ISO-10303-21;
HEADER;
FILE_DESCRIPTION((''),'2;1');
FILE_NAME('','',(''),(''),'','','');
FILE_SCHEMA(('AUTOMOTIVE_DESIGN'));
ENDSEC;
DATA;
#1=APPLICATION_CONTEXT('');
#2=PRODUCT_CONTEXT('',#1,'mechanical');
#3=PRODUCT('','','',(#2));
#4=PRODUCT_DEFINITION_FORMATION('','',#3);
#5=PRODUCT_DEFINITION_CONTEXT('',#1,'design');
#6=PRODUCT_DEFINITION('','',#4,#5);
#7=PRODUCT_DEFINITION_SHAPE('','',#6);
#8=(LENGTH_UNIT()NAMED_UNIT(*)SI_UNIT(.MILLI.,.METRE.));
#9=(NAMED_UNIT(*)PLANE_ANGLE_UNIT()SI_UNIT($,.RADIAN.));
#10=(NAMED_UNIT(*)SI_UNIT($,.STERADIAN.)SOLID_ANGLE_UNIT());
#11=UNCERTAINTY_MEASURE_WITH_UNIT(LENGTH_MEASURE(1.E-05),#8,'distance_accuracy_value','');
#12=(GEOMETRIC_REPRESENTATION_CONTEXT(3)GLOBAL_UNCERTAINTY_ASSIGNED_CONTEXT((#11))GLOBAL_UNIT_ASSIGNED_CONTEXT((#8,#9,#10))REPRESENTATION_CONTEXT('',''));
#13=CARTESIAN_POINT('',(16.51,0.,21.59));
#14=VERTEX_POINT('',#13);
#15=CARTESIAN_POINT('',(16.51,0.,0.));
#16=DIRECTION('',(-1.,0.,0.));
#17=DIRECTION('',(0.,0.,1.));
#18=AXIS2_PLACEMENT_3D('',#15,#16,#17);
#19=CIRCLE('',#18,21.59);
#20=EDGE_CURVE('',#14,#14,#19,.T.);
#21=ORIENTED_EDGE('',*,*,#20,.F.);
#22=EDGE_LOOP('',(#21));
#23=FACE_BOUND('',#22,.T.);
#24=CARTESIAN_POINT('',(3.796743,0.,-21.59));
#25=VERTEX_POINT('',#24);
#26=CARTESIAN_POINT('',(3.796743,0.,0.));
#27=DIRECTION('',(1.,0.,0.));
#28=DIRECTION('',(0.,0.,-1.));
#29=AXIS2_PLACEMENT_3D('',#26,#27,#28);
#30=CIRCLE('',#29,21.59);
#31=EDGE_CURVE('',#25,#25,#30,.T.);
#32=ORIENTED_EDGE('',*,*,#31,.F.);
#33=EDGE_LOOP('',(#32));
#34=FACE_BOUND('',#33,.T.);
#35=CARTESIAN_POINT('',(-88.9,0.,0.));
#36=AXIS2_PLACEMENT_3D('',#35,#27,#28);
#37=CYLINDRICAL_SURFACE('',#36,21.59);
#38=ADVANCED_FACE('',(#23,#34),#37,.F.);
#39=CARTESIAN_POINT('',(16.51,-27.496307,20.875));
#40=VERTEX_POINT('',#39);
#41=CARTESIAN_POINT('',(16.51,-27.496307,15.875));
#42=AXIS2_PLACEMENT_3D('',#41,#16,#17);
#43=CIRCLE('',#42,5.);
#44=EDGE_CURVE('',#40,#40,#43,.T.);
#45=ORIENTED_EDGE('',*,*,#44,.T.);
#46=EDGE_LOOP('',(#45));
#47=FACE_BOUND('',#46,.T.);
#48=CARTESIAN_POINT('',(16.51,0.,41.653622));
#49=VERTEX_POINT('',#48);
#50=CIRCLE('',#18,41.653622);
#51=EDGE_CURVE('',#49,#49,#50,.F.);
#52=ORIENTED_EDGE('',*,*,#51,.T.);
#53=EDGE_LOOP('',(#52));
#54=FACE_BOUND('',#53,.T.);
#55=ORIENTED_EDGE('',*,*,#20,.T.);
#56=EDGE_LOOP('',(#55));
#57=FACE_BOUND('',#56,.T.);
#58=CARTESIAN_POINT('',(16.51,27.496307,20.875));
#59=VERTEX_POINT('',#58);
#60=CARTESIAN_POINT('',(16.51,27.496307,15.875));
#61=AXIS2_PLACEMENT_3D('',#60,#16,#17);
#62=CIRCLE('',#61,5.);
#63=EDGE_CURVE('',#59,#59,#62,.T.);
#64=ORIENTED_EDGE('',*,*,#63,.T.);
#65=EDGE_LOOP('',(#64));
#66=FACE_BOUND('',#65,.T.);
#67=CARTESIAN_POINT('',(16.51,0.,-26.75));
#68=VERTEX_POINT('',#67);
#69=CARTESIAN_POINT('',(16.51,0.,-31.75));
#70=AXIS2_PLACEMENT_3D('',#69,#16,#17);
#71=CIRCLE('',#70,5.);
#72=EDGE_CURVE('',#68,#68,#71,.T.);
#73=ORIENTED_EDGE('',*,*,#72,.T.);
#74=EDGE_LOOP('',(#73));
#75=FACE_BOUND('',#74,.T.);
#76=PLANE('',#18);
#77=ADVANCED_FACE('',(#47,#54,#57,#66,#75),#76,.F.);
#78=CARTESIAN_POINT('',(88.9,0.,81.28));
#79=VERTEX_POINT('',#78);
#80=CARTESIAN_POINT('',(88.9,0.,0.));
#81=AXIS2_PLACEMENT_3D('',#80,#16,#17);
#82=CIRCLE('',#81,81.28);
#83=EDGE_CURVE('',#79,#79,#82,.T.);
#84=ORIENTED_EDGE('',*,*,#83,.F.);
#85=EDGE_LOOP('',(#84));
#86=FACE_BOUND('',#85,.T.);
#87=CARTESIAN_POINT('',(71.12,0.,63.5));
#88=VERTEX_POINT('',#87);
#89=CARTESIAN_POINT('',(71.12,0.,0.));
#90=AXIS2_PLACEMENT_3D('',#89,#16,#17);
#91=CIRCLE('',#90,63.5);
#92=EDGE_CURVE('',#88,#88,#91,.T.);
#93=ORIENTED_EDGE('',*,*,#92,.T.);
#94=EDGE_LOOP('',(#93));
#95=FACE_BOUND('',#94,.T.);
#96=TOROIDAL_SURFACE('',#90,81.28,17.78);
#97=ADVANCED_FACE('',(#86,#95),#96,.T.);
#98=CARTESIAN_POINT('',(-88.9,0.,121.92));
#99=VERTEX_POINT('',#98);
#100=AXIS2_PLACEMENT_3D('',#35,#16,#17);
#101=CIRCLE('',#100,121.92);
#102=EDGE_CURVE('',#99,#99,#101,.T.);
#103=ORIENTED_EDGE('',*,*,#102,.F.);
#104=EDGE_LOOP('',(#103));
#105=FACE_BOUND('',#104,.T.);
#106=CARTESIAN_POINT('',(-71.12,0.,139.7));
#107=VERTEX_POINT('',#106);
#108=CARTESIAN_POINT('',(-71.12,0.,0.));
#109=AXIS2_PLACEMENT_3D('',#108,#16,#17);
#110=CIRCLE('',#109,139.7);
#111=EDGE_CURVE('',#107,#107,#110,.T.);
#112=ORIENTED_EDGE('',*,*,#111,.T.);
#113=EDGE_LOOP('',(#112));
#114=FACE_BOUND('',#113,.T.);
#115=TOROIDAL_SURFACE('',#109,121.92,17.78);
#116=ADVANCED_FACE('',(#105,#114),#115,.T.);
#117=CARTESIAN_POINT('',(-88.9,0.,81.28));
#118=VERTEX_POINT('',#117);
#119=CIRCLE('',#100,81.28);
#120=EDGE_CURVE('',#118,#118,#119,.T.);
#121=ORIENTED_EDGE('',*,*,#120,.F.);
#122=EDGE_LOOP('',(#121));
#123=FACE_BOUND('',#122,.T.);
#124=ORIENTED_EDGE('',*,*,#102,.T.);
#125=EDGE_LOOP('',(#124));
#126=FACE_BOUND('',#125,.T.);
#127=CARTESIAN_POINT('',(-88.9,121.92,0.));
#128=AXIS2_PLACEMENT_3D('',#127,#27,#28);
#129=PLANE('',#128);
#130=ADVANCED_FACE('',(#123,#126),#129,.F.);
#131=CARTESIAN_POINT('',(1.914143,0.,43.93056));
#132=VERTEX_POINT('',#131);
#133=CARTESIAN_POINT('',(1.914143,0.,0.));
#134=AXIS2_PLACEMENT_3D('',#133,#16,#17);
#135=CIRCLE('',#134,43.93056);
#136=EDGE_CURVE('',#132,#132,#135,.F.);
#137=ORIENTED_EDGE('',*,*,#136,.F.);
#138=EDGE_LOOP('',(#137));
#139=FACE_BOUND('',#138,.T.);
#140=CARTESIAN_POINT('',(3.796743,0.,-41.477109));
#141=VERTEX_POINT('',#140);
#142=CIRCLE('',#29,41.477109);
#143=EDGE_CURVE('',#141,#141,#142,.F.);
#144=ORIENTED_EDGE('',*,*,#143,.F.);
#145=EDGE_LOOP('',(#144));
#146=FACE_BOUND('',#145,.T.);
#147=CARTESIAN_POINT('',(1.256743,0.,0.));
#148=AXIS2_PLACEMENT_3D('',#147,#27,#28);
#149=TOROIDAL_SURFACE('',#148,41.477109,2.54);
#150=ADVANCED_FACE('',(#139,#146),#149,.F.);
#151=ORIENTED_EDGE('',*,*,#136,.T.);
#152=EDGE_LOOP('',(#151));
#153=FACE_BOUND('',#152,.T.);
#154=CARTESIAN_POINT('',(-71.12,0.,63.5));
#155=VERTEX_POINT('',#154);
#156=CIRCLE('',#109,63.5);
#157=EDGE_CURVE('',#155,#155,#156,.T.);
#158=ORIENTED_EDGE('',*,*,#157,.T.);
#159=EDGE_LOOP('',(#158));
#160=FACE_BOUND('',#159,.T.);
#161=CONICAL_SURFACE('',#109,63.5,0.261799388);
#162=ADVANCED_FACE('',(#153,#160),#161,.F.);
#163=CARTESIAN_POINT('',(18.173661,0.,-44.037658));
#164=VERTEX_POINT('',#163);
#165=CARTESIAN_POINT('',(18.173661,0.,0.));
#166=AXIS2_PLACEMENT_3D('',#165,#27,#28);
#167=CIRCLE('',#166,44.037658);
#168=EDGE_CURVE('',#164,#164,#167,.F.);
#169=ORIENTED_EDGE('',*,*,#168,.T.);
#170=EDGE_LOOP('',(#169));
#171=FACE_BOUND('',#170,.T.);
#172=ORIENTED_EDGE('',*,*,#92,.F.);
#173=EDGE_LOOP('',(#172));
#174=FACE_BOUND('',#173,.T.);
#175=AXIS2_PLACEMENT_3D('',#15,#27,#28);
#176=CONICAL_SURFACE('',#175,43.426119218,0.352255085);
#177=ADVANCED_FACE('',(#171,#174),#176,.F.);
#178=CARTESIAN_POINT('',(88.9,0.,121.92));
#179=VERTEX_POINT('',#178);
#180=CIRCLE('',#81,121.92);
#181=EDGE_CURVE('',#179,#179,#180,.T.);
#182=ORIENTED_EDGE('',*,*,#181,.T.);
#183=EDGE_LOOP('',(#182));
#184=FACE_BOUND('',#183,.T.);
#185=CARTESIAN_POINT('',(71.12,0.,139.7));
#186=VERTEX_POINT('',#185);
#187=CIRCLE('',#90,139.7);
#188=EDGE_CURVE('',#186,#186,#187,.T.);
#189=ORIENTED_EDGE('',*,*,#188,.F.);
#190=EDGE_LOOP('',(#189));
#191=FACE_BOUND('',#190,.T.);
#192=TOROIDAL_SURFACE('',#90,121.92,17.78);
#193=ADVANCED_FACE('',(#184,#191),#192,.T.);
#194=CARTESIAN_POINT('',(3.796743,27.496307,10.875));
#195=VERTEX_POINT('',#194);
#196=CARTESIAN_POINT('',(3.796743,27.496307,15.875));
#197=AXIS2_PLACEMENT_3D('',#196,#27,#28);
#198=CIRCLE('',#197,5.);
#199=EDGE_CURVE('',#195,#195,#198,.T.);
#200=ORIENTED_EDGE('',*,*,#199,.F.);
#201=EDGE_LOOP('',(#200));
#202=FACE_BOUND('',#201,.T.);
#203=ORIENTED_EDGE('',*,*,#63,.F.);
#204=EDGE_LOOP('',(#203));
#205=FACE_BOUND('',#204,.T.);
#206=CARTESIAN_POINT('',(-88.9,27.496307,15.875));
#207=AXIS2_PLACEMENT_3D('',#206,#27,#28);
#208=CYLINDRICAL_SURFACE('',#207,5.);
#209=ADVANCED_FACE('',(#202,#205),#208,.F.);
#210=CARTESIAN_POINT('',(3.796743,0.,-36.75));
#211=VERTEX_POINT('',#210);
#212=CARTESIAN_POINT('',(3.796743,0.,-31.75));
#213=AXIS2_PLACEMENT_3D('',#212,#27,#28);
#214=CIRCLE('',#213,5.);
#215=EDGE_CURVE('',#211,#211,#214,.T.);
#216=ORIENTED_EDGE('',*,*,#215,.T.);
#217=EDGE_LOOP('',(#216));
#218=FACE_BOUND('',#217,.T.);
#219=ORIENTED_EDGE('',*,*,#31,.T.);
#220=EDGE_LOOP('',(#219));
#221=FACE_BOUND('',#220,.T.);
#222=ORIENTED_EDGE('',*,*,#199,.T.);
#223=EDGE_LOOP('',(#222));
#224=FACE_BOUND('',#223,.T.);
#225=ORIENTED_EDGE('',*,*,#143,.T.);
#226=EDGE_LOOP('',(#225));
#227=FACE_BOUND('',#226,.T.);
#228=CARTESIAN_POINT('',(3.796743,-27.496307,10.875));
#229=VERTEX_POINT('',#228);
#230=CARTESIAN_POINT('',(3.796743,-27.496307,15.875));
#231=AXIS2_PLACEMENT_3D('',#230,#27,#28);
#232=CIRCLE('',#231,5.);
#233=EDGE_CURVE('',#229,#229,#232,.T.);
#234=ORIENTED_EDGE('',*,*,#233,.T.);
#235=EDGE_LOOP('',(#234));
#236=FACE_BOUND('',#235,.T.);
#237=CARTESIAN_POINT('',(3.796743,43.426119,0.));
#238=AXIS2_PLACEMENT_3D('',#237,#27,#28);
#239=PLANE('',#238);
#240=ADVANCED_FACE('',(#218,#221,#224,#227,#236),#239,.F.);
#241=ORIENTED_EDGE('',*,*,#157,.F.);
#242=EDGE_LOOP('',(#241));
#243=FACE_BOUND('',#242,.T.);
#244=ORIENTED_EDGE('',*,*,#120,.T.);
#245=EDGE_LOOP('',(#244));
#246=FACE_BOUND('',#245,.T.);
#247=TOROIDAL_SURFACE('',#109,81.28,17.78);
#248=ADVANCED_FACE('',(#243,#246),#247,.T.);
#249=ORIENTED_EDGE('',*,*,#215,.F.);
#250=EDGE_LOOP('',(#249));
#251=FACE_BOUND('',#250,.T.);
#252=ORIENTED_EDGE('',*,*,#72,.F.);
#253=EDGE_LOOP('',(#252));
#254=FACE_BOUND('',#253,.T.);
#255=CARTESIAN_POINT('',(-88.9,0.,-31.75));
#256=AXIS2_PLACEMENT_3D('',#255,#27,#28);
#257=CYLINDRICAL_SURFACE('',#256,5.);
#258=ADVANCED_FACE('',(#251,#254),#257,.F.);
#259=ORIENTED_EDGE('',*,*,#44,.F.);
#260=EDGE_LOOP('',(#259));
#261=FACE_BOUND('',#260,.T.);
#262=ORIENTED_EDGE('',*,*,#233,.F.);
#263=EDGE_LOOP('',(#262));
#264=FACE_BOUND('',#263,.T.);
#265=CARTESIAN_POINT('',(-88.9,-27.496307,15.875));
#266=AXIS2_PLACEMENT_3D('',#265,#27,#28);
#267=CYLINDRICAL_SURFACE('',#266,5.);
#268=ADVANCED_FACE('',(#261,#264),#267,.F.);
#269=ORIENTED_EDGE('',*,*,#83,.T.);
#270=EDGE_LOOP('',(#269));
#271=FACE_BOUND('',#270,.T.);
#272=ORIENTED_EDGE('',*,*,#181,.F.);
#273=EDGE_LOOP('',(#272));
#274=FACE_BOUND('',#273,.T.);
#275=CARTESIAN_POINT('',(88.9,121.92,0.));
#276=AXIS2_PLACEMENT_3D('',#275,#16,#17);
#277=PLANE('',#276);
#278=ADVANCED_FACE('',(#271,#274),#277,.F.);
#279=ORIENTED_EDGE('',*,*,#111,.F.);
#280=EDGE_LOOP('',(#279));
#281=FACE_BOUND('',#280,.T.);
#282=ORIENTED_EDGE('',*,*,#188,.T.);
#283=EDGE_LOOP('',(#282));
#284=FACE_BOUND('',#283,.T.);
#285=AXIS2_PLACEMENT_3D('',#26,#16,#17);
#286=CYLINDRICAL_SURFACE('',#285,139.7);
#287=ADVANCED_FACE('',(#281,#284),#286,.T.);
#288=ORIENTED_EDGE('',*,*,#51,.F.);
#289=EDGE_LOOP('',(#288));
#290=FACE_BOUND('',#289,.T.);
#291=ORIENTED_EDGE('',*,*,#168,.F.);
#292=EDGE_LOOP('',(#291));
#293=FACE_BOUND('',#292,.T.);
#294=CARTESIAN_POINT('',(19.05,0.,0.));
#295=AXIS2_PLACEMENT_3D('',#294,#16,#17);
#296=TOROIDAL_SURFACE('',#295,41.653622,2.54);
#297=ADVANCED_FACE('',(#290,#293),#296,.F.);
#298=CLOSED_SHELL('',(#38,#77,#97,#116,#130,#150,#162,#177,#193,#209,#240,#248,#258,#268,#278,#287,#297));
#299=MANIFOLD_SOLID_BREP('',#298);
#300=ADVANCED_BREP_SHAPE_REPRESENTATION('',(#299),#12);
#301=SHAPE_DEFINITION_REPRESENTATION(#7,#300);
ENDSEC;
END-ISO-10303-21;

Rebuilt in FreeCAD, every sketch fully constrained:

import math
import FreeCAD as App
import Part
import Sketcher
Q = App.Units.Quantity


def edges_at(feature, points):
    """Names of the edges that pass closest to the given points."""
    edges = feature.Shape.Edges
    near = lambda p: min(range(len(edges)), key=lambda i: edges[i].distToShape(Part.Vertex(*p))[0])
    return sorted({f"Edge{near(p) + 1}" for p in points})

doc = App.newDocument("Part")
body = doc.addObject("PartDesign::Body", "Body")

# Sketch on XY plane
sketch1 = doc.addObject("Sketcher::SketchObject", "Sketch")
body.addObject(sketch1)
sketch1.AttachmentSupport = (doc.XY_Plane, [""])
sketch1.MapMode = "FlatFace"
sketch1.addGeometry([
    Part.LineSegment(App.Vector(71, 140, 0), App.Vector(-71, 140, 0)),  # 0
    Part.ArcOfCircle(Part.Circle(App.Vector(-71, 122, 0), App.Vector(0, 0, 1), 18), math.radians(90), math.radians(180)),  # 1
    Part.LineSegment(App.Vector(-89, 122, 0), App.Vector(-89, 81, 0)),  # 2
    Part.ArcOfCircle(Part.Circle(App.Vector(-71, 81, 0), App.Vector(0, 0, 1), 18), math.radians(-180), math.radians(-90)),  # 3
    Part.LineSegment(App.Vector(-71, 64, 0), App.Vector(4, 43, 0)),  # 4
    Part.LineSegment(App.Vector(4, 43, 0), App.Vector(4, 0, 0)),  # 5
    Part.LineSegment(App.Vector(4, 0, 0), App.Vector(17, 0, 0)),  # 6
    Part.LineSegment(App.Vector(17, 0, 0), App.Vector(17, 43, 0)),  # 7
    Part.LineSegment(App.Vector(17, 43, 0), App.Vector(71, 64, 0)),  # 8
    Part.ArcOfCircle(Part.Circle(App.Vector(71, 81, 0), App.Vector(0, 0, 1), 18), math.radians(-90), math.radians(0)),  # 9
    Part.LineSegment(App.Vector(89, 81, 0), App.Vector(89, 122, 0)),  # 10
    Part.ArcOfCircle(Part.Circle(App.Vector(71, 122, 0), App.Vector(0, 0, 1), 18), math.radians(0), math.radians(90)),  # 11
], False)
sketch1.addConstraint([
    Sketcher.Constraint("Tangent", 0, 2, 1, 1),
    Sketcher.Constraint("Tangent", 1, 2, 2, 1),
    Sketcher.Constraint("Tangent", 2, 2, 3, 1),
    Sketcher.Constraint("Coincident", 3, 2, 4, 1),
    Sketcher.Constraint("Coincident", 4, 2, 5, 1),
    Sketcher.Constraint("Coincident", 5, 2, 6, 1),
    Sketcher.Constraint("Coincident", 6, 2, 7, 1),
    Sketcher.Constraint("Coincident", 7, 2, 8, 1),
    Sketcher.Constraint("Coincident", 8, 2, 9, 1),
    Sketcher.Constraint("Tangent", 9, 2, 10, 1),
    Sketcher.Constraint("Tangent", 10, 2, 11, 1),
    Sketcher.Constraint("Tangent", 11, 2, 0, 1),
    Sketcher.Constraint("Horizontal", 0),
    Sketcher.Constraint("Vertical", 2),
    Sketcher.Constraint("Vertical", 5),
    Sketcher.Constraint("Horizontal", 6),
    Sketcher.Constraint("Vertical", 7),
    Sketcher.Constraint("Vertical", 10),
    Sketcher.Constraint("Equal", 1, 3),
    Sketcher.Constraint("Equal", 3, 9),
    Sketcher.Constraint("Equal", 9, 11),
    Sketcher.Constraint("Symmetric", 3, 3, 9, 3, -2),
    Sketcher.Constraint("PointOnObject", 5, 2, -1),
    Sketcher.Constraint("Horizontal", 4, 2, 7, 2),
    Sketcher.Constraint("Vertical", 0, 2, 3, 2),
    Sketcher.Constraint("Vertical", 11, 3, 8, 2),
    Sketcher.Constraint("Radius", 1, Q("0.7 in")),
    Sketcher.Constraint("DistanceX", 0, 2, 0, 1, Q("5.6 in")),
    Sketcher.Constraint("DistanceY", 2, 2, 2, 1, Q("1.6 in")),
    Sketcher.Constraint("Angle", 4, Q("-15 deg")),
    Sketcher.Constraint("DistanceY", -1, 1, 1, 3, Q("4.8 in")),
    Sketcher.Constraint("DistanceX", -1, 1, 6, 2, Q("0.65 in")),
    Sketcher.Constraint("DistanceY", 5, 2, 5, 1, 43.426119),
])
revolution = doc.addObject("PartDesign::Revolution", "Revolution")
body.addObject(revolution)
revolution.Profile = sketch1
revolution.ReferenceAxis = (sketch1, ["H_Axis"])
revolution.Angle = 360

# Sketch on YZ plane
sketch2 = doc.addObject("Sketcher::SketchObject", "Sketch001")
body.addObject(sketch2)
sketch2.AttachmentSupport = (doc.YZ_Plane, [""])
sketch2.MapMode = "FlatFace"
sketch2.addGeometry(Part.Circle(App.Vector(0, 0, 0), App.Vector(0, 0, 1), 22), False)
sketch2.addConstraint([
    Sketcher.Constraint("Coincident", 0, 3, -1, 1),
    Sketcher.Constraint("Diameter", 0, Q("1.7 in")),
])
pocket1 = doc.addObject("PartDesign::Pocket", "Pocket")
body.addObject(pocket1)
pocket1.Profile = sketch2
pocket1.Type = "ThroughAll"
pocket1.Midplane = True

# Sketch on YZ plane
sketch3 = doc.addObject("Sketcher::SketchObject", "Sketch002")
body.addObject(sketch3)
sketch3.AttachmentSupport = (doc.YZ_Plane, [""])
sketch3.MapMode = "FlatFace"
sketch3.addGeometry([
    Part.Circle(App.Vector(0, -32, 0), App.Vector(0, 0, 1), 5),
    Part.Circle(App.Vector(-27, 16, 0), App.Vector(0, 0, 1), 5),
    Part.Circle(App.Vector(27, 16, 0), App.Vector(0, 0, 1), 5),
], False)
sketch3.addConstraint([
    Sketcher.Constraint("Equal", 0, 1),
    Sketcher.Constraint("Equal", 1, 2),
    Sketcher.Constraint("Symmetric", 1, 3, 2, 3, -2),
    Sketcher.Constraint("PointOnObject", 0, 3, -2),
    Sketcher.Constraint("Diameter", 0, 10.0),
    Sketcher.Constraint("DistanceY", 0, 3, -1, 1, Q("1.25 in")),
    Sketcher.Constraint("DistanceY", -1, 1, 1, 3, Q("0.625 in")),
    Sketcher.Constraint("DistanceX", 1, 3, -1, 1, 27.496307),
])
pocket2 = doc.addObject("PartDesign::Pocket", "Pocket001")
body.addObject(pocket2)
pocket2.Profile = sketch3
pocket2.Type = "ThroughAll"
pocket2.Midplane = True
doc.recompute()

fillet = doc.addObject("PartDesign::Fillet", "Fillet")
body.addObject(fillet)
fillet.Base = (pocket2, edges_at(pocket2, [(16.51, 0, -43.426), (3.797, 0, -43.426)]))
fillet.Radius = Q("0.1 in")

doc.recompute()
